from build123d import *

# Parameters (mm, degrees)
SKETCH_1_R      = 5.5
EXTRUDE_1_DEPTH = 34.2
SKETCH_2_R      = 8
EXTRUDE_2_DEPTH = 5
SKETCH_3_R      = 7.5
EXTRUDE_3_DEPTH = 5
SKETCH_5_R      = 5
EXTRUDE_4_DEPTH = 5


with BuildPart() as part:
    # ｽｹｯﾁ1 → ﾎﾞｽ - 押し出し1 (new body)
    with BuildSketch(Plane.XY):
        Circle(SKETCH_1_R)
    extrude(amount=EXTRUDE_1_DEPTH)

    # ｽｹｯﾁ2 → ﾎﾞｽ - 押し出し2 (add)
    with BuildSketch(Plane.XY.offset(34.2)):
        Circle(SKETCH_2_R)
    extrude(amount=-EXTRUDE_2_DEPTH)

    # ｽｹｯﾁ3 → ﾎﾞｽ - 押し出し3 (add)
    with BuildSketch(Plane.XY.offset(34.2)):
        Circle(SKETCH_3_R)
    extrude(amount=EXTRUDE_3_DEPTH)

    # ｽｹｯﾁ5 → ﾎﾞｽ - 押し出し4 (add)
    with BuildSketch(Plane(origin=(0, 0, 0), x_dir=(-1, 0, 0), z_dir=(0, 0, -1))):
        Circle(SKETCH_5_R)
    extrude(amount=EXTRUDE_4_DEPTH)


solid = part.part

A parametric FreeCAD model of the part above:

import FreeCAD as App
import Part
import Sketcher
from FreeCAD import Vector
Q = App.Units.Quantity

doc = App.newDocument("Part")
body = doc.addObject("PartDesign::Body", "Body")

sketch1 = body.newObject("Sketcher::SketchObject", "Sketch")
sketch1.AttachmentSupport = (doc.getObject("XY_Plane"), [""])
sketch1.MapMode = "FlatFace"
sketch1.addGeometry(Part.Circle(Vector(0, 0, 0), Vector(0, 0, 1), 6), False)
sketch1.addConstraint([
    Sketcher.Constraint("Coincident", 0, 3, -1, 1),
    Sketcher.Constraint("Diameter", 0, Q("11 mm")),
])
pad1 = body.newObject("PartDesign::Pad", "Pad")
pad1.Profile = sketch1
pad1.Length = 34.2

sketch2 = body.newObject("Sketcher::SketchObject", "Sketch001")
sketch2.AttachmentSupport = (doc.getObject("XY_Plane"), [""])
sketch2.MapMode = "FlatFace"
sketch2.AttachmentOffset = App.Placement(Vector(0, 0, 34.2), App.Rotation())
sketch2.addGeometry(Part.Circle(Vector(0, 0, 0), Vector(0, 0, 1), 8), False)
sketch2.addConstraint([
    Sketcher.Constraint("Coincident", 0, 3, -1, 1),
    Sketcher.Constraint("Diameter", 0, Q("16 mm")),
])
pad2 = body.newObject("PartDesign::Pad", "Pad001")
pad2.Profile = sketch2
pad2.Length = 5
pad2.Reversed = True

sketch3 = body.newObject("Sketcher::SketchObject", "Sketch002")
sketch3.AttachmentSupport = (doc.getObject("XY_Plane"), [""])
sketch3.MapMode = "FlatFace"
sketch3.AttachmentOffset = App.Placement(Vector(0, 0, 34.2), App.Rotation())
sketch3.addGeometry(Part.Circle(Vector(0, 0, 0), Vector(0, 0, 1), 8), False)
sketch3.addConstraint([
    Sketcher.Constraint("Coincident", 0, 3, -1, 1),
    Sketcher.Constraint("Diameter", 0, Q("15 mm")),
])
pad3 = body.newObject("PartDesign::Pad", "Pad002")
pad3.Profile = sketch3
pad3.Length = 5

sketch4 = body.newObject("Sketcher::SketchObject", "Sketch003")
sketch4.AttachmentSupport = (doc.getObject("XY_Plane"), [""])
sketch4.MapMode = "FlatFace"
sketch4.addGeometry(Part.Circle(Vector(0, 0, 0), Vector(0, 0, 1), 5), False)
sketch4.addConstraint([
    Sketcher.Constraint("Coincident", 0, 3, -1, 1),
    Sketcher.Constraint("Diameter", 0, Q("10 mm")),
])
pad4 = body.newObject("PartDesign::Pad", "Pad003")
pad4.Profile = sketch4
pad4.Length = 5
pad4.Reversed = True

doc.recompute()
